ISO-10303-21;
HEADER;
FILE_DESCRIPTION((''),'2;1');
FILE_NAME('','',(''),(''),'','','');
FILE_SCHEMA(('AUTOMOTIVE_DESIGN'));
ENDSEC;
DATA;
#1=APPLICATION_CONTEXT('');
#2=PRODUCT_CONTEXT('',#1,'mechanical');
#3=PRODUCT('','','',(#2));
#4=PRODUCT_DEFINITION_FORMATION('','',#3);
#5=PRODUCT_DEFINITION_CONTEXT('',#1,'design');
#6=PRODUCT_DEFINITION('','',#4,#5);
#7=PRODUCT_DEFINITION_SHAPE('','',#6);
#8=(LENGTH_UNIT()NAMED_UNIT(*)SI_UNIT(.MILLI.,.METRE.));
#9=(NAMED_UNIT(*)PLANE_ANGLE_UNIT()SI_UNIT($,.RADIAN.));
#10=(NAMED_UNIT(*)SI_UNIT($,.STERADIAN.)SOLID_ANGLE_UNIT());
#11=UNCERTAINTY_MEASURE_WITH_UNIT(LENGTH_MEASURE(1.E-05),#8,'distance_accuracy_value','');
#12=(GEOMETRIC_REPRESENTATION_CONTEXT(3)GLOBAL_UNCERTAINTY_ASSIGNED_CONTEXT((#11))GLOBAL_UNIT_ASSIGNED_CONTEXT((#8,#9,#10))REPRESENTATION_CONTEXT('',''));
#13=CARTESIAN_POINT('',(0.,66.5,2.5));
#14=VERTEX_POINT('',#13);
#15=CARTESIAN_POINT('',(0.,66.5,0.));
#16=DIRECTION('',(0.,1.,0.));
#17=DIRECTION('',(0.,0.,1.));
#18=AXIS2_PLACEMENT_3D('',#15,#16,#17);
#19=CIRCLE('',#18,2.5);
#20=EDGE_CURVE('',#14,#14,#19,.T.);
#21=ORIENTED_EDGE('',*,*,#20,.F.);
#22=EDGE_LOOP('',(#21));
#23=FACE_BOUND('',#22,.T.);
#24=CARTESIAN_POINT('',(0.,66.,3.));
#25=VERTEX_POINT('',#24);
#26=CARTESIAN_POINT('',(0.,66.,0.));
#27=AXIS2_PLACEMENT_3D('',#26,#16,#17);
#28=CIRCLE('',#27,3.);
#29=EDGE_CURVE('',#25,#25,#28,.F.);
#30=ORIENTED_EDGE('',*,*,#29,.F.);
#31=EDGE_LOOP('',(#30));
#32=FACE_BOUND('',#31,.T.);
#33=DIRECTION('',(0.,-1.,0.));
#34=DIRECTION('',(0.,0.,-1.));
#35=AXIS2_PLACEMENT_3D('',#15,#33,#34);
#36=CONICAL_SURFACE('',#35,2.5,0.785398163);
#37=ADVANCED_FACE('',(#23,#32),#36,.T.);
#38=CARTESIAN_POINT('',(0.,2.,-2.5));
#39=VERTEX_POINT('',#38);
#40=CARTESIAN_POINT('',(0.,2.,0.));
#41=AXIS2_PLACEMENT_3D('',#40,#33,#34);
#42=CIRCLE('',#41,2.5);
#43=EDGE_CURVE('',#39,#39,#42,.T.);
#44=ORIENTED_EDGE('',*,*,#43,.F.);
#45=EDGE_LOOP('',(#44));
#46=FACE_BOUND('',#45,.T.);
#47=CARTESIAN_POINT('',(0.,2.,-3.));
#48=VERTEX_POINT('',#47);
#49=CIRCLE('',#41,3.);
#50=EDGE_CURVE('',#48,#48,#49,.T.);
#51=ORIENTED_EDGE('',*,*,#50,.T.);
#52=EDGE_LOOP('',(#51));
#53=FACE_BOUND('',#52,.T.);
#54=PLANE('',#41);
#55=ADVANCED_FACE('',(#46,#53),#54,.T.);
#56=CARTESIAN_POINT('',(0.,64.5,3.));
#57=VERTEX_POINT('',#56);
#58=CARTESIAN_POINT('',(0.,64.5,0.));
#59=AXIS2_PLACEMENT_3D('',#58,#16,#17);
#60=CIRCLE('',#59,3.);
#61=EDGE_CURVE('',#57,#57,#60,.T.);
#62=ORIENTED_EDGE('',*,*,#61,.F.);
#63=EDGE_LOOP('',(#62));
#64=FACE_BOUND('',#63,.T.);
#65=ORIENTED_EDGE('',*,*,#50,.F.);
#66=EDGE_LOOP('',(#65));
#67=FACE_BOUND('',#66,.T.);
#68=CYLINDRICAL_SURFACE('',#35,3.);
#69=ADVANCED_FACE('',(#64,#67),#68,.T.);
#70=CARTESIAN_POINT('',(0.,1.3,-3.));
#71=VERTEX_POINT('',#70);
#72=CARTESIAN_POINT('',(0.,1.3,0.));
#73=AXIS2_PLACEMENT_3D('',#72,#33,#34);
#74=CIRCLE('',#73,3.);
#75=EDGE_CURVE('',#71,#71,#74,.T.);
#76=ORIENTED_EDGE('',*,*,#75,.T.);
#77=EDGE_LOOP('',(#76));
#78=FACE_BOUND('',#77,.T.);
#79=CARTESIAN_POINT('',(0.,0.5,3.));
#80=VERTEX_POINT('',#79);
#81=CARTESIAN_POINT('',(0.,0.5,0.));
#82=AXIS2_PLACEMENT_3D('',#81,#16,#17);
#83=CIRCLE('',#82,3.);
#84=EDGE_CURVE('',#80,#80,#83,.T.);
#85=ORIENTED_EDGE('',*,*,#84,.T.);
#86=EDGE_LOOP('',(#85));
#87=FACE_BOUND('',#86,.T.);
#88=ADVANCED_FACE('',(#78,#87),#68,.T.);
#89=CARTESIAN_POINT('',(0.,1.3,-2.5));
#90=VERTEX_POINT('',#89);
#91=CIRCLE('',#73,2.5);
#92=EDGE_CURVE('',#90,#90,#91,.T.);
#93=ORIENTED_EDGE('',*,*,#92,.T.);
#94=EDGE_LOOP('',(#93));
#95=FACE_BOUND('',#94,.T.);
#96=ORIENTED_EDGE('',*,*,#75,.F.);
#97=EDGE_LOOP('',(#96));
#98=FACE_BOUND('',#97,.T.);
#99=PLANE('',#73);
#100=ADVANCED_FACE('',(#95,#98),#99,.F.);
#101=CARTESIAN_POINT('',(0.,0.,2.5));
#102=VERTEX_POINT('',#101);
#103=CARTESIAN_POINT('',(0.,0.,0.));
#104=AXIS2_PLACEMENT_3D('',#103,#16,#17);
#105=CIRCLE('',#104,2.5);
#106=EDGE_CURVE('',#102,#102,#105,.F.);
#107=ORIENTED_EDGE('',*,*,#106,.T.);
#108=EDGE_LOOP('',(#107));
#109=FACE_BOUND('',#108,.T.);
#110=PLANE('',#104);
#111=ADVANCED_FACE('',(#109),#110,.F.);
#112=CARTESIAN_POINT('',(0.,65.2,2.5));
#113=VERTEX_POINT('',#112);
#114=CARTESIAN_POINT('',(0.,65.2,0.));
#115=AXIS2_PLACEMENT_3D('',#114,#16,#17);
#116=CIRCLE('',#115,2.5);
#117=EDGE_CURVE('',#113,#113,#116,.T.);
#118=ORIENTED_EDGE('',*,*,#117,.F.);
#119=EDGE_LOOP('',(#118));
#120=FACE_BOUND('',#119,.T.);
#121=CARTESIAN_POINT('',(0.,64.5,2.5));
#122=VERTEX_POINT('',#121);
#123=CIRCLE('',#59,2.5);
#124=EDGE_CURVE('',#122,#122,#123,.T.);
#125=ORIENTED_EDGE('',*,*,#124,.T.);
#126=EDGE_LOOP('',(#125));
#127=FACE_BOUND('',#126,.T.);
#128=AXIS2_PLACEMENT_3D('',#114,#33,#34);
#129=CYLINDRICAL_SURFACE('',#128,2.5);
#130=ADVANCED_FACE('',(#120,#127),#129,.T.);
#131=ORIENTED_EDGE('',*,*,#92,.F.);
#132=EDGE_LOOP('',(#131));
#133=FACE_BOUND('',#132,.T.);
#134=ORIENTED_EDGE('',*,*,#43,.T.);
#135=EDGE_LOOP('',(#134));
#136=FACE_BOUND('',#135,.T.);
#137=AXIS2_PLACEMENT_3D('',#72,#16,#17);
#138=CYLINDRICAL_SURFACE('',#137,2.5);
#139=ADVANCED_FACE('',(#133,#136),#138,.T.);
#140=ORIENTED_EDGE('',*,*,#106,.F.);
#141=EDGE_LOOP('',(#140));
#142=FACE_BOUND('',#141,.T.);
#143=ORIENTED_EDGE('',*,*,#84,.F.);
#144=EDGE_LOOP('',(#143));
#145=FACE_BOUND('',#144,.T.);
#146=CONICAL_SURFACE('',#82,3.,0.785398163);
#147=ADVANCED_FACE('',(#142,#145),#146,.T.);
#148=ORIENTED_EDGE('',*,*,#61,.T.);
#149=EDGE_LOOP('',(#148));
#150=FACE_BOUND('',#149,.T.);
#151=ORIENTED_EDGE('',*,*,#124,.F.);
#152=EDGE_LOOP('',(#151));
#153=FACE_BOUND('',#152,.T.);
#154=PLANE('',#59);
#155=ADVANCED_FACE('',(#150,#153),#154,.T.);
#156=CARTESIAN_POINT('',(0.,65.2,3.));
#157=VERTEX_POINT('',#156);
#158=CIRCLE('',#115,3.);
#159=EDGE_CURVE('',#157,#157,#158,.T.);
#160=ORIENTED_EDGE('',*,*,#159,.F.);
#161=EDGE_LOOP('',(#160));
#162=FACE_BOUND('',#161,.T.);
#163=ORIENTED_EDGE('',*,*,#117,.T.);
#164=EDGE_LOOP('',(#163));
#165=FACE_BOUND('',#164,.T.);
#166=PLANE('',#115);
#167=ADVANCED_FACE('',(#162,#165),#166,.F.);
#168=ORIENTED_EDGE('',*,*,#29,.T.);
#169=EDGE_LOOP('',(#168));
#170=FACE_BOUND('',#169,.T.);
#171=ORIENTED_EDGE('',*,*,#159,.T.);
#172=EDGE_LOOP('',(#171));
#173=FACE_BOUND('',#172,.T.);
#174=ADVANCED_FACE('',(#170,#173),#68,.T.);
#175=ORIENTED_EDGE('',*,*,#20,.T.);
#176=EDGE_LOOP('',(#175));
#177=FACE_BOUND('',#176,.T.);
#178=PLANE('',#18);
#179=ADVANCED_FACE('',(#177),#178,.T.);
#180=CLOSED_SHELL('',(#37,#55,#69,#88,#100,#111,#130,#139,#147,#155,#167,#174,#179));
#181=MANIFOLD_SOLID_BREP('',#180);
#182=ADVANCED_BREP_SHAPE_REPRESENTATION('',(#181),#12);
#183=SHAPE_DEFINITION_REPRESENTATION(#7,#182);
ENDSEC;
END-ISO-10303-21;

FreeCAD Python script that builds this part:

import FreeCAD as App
import Part
import Sketcher
from FreeCAD import Vector
Q = App.Units.Quantity


def edges_at(feature, points):
    """Names of the edges that pass closest to the given points."""
    edges = feature.Shape.Edges
    near = lambda p: min(range(len(edges)), key=lambda i: edges[i].distToShape(Part.Vertex(*p))[0])
    return sorted({f"Edge{near(p) + 1}" for p in points})

doc = App.newDocument("Part")
params = doc.addObject("Spreadsheet::Sheet", "Params")
for row, (alias, value) in enumerate([
    ("sketch1_diameter", "6 mm"),
    ("pad1_length", "66.5 mm"),
    ("sketch2_diameter", "6 mm"),
    ("sketch2_diameter2", "5 mm"),
    ("pocket1_length", "0.7 mm"),
    ("sketch3_diameter", "6 mm"),
    ("sketch3_diameter2", "5 mm"),
    ("pocket2_length", "0.7 mm"),
    ("chamfer_size", "0.5 mm"),
], start=1):
    params.set(f"A{row}", alias)
    params.set(f"B{row}", "=" + value)
    params.setAlias(f"B{row}", alias)

body = doc.addObject("PartDesign::Body", "Body")

sketch1 = doc.addObject("Sketcher::SketchObject", "Sketch")
body.addObject(sketch1)
sketch1.AttachmentSupport = (doc.XZ_Plane, [""])
sketch1.MapMode = "FlatFace"
sketch1.addGeometry(Part.Circle(Vector(0, 0, 0), Vector(0, 0, 1), 3), False)
sketch1.addConstraint(Sketcher.Constraint("Coincident", 0, 3, -1, 1))
sketch1.addConstraint(Sketcher.Constraint("Diameter", 0, Q("6 mm")))
sketch1.setExpression("Constraints[1]", "Params.sketch1_diameter")
pad1 = doc.addObject("PartDesign::Pad", "Pad")
body.addObject(pad1)
pad1.Profile = sketch1
pad1.setExpression("Length", "Params.pad1_length")
pad1.Reversed = True

sketch2 = doc.addObject("Sketcher::SketchObject", "Sketch001")
body.addObject(sketch2)
sketch2.AttachmentSupport = (doc.XZ_Plane, [""])
sketch2.MapMode = "FlatFace"
sketch2.AttachmentOffset = App.Placement(Vector(0, 0, -64.5), App.Rotation())
sketch2.addGeometry(Part.Circle(Vector(0, 0, 0), Vector(0, 0, 1), 3), False)
sketch2.addGeometry(Part.Circle(Vector(0, 0, 0), Vector(0, 0, 1), 2.5), False)
sketch2.addConstraint(Sketcher.Constraint("Coincident", 0, 3, -1, 1))
sketch2.addConstraint(Sketcher.Constraint("Coincident", 1, 3, -1, 1))
sketch2.addConstraint(Sketcher.Constraint("Diameter", 0, Q("6 mm")))
sketch2.addConstraint(Sketcher.Constraint("Diameter", 1, Q("5 mm")))
sketch2.setExpression("Constraints[2]", "Params.sketch2_diameter")
sketch2.setExpression("Constraints[3]", "Params.sketch2_diameter2")
pocket1 = doc.addObject("PartDesign::Pocket", "Pocket")
body.addObject(pocket1)
pocket1.Profile = sketch2
pocket1.setExpression("Length", "Params.pocket1_length")

sketch3 = doc.addObject("Sketcher::SketchObject", "Sketch002")
body.addObject(sketch3)
sketch3.AttachmentSupport = (doc.XZ_Plane, [""])
sketch3.MapMode = "FlatFace"
sketch3.AttachmentOffset = App.Placement(Vector(0, 0, -1.3), App.Rotation())
sketch3.addGeometry(Part.Circle(Vector(0, 0, 0), Vector(0, 0, 1), 3), False)
sketch3.addGeometry(Part.Circle(Vector(0, 0, 0), Vector(0, 0, 1), 2.5), False)
sketch3.addConstraint(Sketcher.Constraint("Coincident", 0, 3, -1, 1))
sketch3.addConstraint(Sketcher.Constraint("Coincident", 1, 3, -1, 1))
sketch3.addConstraint(Sketcher.Constraint("Diameter", 0, Q("6 mm")))
sketch3.addConstraint(Sketcher.Constraint("Diameter", 1, Q("5 mm")))
sketch3.setExpression("Constraints[2]", "Params.sketch3_diameter")
sketch3.setExpression("Constraints[3]", "Params.sketch3_diameter2")
pocket2 = doc.addObject("PartDesign::Pocket", "Pocket001")
body.addObject(pocket2)
pocket2.Profile = sketch3
pocket2.setExpression("Length", "Params.pocket2_length")
doc.recompute()

chamfer = doc.addObject("PartDesign::Chamfer", "Chamfer")
body.addObject(chamfer)
chamfer.Base = (pocket2, edges_at(pocket2, [(0, 0, -3), (0, 66.5, -3)]))
chamfer.setExpression("Size", "Params.chamfer_size")

doc.recompute()
